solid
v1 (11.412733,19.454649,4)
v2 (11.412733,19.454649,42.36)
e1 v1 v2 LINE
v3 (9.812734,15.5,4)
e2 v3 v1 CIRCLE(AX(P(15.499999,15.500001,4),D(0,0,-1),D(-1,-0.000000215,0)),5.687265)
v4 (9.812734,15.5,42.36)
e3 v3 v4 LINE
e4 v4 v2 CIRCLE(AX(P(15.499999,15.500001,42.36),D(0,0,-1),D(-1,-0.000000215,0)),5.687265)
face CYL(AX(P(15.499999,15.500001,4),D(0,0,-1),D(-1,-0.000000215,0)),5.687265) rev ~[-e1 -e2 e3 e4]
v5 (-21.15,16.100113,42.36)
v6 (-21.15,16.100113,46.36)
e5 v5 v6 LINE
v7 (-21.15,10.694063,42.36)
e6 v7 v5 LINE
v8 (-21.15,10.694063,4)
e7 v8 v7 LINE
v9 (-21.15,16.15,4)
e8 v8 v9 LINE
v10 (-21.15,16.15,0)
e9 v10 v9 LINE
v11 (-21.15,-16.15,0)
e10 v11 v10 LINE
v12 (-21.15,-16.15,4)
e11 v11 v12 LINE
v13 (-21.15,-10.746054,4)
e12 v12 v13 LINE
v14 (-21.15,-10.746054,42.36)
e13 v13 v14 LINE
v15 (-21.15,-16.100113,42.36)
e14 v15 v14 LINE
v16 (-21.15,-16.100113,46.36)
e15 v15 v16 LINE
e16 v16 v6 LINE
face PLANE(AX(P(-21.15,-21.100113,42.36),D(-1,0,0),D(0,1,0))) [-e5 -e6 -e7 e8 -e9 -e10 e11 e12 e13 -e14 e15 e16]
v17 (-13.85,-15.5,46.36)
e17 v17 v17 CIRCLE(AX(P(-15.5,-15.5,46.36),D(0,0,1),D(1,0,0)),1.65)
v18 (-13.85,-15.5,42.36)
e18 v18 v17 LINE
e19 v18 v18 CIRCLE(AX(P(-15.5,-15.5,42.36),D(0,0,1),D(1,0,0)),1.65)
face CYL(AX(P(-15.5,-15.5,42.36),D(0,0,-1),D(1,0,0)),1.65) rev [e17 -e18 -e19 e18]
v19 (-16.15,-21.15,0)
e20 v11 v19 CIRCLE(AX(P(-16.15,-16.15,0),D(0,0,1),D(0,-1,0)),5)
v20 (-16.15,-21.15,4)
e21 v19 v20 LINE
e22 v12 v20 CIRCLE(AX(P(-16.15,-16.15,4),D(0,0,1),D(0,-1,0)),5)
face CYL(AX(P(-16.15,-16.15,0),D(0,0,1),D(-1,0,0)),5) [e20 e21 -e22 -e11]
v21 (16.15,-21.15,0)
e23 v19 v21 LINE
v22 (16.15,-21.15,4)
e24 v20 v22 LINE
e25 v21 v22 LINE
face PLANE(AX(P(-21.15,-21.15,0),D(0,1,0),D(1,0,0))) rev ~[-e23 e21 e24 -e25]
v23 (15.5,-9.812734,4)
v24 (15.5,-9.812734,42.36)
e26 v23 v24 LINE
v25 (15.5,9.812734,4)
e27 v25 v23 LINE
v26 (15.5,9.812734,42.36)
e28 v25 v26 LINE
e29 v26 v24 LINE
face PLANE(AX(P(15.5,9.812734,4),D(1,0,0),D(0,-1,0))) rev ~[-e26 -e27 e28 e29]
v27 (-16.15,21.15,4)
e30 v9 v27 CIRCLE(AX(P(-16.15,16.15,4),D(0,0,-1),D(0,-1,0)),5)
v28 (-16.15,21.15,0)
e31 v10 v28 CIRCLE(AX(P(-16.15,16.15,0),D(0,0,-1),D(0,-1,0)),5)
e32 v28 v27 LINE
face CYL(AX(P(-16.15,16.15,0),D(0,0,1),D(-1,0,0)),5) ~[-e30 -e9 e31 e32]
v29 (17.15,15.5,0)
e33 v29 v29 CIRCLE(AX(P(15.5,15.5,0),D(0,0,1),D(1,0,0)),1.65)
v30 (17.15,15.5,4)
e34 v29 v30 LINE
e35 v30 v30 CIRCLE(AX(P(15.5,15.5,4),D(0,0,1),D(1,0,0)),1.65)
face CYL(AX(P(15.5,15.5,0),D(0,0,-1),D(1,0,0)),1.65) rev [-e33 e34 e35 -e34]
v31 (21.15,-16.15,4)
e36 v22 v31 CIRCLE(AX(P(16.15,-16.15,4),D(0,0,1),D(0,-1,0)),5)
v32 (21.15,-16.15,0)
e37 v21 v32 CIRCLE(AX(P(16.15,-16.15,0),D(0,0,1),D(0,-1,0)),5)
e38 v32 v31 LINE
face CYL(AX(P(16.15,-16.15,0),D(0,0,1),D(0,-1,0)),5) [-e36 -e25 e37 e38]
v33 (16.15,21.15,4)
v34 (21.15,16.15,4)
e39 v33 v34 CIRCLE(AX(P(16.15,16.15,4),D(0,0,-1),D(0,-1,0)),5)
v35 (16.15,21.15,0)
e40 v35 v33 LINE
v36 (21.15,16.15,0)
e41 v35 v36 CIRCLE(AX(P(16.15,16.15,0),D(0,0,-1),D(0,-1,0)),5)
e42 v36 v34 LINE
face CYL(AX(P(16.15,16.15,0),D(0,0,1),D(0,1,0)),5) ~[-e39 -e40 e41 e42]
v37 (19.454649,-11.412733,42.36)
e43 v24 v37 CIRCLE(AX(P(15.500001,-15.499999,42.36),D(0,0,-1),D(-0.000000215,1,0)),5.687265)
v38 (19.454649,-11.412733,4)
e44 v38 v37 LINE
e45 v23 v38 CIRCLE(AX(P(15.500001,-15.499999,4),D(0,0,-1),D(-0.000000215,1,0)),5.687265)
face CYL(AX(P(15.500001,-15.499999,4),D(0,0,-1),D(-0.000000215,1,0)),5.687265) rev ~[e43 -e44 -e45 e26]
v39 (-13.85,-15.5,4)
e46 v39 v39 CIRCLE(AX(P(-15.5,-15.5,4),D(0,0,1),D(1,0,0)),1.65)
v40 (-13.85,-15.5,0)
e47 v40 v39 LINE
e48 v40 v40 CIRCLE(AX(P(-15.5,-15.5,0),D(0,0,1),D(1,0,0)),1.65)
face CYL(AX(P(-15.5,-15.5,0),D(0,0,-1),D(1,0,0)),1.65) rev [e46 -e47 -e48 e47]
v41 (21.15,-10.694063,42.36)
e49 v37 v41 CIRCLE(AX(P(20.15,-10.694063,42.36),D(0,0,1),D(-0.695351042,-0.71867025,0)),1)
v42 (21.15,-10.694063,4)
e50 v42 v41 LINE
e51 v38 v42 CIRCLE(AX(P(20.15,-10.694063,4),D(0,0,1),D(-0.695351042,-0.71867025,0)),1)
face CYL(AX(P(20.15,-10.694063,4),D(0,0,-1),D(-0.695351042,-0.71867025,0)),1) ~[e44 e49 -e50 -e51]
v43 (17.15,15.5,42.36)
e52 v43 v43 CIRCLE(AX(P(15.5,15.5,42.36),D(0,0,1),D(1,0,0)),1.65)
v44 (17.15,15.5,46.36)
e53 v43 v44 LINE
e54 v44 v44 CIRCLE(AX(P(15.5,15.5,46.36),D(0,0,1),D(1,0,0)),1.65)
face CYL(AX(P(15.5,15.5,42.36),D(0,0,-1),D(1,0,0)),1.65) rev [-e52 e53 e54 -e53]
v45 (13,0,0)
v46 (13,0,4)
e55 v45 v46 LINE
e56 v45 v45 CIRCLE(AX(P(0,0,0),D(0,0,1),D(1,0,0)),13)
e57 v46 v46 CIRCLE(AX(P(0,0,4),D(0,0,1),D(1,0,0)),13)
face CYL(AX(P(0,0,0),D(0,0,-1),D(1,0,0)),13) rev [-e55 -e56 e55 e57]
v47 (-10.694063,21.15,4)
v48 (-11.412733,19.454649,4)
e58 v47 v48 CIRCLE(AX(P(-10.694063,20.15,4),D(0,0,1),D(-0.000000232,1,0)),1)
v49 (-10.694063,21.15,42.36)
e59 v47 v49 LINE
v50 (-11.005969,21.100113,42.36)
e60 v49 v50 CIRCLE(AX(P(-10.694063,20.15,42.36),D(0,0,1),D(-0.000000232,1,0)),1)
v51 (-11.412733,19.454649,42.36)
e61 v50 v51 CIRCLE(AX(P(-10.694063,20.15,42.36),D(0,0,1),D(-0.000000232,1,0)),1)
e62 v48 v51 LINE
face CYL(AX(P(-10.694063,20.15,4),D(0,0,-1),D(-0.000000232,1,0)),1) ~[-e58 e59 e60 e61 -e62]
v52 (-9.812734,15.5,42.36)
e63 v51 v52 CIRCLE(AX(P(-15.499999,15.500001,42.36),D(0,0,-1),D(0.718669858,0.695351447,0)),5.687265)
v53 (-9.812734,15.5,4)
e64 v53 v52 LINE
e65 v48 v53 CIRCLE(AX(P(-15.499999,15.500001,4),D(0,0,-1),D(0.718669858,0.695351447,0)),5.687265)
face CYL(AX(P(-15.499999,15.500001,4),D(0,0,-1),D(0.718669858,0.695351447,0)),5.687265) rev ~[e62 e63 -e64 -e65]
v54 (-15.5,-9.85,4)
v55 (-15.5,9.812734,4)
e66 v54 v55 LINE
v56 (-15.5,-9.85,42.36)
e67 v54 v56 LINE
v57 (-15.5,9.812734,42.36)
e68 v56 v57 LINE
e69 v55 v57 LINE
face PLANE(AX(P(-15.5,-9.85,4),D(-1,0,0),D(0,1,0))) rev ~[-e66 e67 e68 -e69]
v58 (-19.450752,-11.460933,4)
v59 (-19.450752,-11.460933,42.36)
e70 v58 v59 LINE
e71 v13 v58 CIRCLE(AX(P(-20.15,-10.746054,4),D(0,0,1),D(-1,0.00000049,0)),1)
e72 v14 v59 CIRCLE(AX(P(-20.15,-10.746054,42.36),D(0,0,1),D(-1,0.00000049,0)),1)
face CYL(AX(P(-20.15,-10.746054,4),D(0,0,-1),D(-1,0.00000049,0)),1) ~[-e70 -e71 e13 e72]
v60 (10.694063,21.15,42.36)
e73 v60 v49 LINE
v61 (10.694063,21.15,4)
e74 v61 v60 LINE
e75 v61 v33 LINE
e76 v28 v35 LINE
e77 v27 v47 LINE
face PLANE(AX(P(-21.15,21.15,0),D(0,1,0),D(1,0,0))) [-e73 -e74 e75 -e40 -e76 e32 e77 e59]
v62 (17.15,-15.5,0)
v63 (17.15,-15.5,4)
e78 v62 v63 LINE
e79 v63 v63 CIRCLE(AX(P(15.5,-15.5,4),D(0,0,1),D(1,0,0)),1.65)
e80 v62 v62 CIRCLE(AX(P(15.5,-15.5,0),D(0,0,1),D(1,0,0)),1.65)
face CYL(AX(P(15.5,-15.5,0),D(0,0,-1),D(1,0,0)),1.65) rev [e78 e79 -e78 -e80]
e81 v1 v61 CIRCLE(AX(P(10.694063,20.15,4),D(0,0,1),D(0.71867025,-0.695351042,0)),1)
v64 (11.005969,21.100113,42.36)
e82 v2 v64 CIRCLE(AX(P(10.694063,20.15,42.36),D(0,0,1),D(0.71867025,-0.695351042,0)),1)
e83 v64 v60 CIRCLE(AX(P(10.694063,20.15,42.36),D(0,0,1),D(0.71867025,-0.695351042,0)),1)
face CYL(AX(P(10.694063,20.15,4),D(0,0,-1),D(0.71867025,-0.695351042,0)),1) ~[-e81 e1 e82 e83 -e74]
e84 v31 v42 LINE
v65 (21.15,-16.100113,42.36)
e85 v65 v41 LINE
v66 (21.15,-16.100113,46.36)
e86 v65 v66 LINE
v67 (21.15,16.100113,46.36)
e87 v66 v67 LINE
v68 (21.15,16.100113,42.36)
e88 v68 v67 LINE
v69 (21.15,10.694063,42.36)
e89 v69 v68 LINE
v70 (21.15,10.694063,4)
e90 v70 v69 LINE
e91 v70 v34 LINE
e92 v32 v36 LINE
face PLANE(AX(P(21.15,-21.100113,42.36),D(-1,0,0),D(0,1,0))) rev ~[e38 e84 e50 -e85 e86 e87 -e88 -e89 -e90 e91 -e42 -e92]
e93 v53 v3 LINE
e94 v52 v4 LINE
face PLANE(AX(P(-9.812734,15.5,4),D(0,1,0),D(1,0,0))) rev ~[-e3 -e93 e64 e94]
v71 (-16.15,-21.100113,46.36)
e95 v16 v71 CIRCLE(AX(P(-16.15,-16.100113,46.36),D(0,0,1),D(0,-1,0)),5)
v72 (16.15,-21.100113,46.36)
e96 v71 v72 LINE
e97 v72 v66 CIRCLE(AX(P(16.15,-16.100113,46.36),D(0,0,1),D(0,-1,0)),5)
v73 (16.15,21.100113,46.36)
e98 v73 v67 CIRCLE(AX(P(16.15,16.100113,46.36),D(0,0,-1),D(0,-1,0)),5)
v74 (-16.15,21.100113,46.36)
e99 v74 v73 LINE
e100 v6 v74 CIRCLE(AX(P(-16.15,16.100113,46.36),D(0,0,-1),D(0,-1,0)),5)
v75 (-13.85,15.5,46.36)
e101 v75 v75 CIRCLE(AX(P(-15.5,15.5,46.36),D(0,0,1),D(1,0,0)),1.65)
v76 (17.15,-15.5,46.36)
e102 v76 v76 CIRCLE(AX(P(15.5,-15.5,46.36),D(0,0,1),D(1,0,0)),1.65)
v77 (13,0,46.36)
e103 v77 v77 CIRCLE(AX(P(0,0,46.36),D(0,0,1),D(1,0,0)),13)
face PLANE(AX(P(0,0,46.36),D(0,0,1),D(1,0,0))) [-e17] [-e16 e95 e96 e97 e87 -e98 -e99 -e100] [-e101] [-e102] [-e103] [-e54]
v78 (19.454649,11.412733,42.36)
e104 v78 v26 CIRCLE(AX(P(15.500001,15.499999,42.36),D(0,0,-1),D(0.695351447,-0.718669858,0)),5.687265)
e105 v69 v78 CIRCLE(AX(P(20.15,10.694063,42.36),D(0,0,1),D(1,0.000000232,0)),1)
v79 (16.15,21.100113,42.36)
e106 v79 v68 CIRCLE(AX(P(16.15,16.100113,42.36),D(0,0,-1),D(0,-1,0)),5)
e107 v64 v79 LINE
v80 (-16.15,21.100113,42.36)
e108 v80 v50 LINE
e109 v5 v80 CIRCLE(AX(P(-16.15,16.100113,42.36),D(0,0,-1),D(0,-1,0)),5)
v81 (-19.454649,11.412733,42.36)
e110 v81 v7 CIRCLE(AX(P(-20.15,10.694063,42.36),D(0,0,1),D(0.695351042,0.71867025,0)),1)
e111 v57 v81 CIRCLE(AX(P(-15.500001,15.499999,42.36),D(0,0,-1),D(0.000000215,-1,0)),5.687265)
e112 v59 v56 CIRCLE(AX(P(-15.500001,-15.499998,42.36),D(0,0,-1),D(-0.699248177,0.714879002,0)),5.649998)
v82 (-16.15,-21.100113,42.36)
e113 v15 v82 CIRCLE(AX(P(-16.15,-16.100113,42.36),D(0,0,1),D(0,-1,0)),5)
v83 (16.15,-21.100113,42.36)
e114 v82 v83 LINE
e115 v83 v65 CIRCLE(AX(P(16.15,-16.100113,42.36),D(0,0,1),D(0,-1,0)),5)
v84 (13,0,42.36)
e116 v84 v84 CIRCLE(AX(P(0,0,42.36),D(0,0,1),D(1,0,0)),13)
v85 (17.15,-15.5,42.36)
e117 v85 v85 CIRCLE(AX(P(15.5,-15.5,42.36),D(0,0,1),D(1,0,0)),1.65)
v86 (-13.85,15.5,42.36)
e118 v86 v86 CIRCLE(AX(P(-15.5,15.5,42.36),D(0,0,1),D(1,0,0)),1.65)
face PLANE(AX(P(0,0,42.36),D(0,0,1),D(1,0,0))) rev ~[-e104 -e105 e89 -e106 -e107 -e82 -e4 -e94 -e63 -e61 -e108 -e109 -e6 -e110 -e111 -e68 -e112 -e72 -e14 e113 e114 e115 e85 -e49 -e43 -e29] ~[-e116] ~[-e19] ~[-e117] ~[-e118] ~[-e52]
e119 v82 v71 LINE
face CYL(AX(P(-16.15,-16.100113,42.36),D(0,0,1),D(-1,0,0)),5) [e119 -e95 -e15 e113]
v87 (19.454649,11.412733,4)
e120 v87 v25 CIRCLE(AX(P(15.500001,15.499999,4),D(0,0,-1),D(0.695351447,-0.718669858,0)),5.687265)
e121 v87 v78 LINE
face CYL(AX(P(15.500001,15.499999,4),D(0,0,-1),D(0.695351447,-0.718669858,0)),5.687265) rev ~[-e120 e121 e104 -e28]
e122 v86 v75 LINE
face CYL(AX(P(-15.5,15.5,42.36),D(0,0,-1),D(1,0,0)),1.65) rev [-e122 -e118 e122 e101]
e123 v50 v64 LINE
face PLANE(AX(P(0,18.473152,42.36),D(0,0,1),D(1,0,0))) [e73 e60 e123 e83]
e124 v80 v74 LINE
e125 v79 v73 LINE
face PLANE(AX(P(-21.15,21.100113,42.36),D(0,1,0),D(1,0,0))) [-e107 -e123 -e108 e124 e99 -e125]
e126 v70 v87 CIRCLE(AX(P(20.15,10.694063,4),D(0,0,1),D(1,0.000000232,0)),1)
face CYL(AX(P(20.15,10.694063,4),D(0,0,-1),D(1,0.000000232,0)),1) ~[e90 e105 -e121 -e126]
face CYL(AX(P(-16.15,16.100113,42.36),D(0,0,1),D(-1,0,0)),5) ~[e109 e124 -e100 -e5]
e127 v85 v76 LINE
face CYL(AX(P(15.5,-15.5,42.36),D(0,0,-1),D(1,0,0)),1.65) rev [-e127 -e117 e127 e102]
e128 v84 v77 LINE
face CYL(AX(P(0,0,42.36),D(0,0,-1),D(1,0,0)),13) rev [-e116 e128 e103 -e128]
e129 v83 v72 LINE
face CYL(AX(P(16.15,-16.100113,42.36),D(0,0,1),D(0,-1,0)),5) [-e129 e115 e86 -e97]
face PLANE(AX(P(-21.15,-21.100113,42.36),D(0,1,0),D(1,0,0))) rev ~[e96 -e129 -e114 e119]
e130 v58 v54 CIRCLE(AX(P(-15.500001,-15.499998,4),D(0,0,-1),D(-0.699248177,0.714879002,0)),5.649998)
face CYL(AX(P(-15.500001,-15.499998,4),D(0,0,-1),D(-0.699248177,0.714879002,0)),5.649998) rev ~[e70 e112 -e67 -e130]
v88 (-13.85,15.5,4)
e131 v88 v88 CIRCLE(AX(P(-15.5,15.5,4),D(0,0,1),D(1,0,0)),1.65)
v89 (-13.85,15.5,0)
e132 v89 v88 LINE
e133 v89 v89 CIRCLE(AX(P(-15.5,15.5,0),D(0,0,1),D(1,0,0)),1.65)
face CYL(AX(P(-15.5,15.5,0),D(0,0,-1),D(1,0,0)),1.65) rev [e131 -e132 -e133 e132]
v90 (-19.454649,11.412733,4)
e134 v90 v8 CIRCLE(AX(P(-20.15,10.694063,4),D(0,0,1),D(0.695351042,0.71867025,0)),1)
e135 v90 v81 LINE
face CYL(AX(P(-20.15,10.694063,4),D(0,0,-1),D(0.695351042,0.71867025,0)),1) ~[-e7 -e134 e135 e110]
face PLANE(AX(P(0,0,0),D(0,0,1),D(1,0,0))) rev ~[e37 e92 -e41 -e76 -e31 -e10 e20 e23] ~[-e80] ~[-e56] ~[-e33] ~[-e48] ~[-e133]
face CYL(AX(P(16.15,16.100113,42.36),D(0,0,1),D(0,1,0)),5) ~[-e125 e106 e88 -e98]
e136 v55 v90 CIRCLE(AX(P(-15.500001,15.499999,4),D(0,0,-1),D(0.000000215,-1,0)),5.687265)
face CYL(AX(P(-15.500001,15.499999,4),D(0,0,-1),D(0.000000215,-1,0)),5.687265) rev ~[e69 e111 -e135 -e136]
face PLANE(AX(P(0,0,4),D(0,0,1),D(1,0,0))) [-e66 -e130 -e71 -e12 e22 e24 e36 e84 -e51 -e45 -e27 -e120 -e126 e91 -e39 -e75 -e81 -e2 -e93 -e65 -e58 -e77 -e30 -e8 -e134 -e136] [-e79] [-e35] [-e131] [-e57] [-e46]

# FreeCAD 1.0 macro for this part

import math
import FreeCAD as App
import Part
import Sketcher


def edges_at(feature, points):
    """Names of the edges that pass closest to the given points."""
    edges = feature.Shape.Edges
    near = lambda p: min(range(len(edges)), key=lambda i: edges[i].distToShape(Part.Vertex(*p))[0])
    return sorted({f"Edge{near(p) + 1}" for p in points})


def add_polygon(sketch, points):
    """Adds a closed chain of lines whose ends are joined by coincident constraints."""
    first, n = sketch.GeometryCount, len(points)
    for a, b in zip(points, points[1:] + points[:1]):
        sketch.addGeometry(Part.LineSegment(App.Vector(*a, 0), App.Vector(*b, 0)), False)
    for i in range(n):
        sketch.addConstraint(Sketcher.Constraint("Coincident", first + i, 2, first + (i + 1) % n, 1))

doc = App.newDocument("Part")
body = doc.addObject("PartDesign::Body", "Body")

sketch1 = body.newObject("Sketcher::SketchObject", "Sketch")
sketch1.AttachmentSupport = (doc.getObject("XY_Plane"), [""])
sketch1.MapMode = "FlatFace"
add_polygon(sketch1, [(-21.15, 21.15), (-21.15, -21.15), (21.15, -21.15), (21.15, 21.15)])
sketch1.addGeometry(Part.Circle(App.Vector(-15.5, -15.5, 0), App.Vector(0, 0, 1), 1.65), False)
sketch1.addGeometry(Part.Circle(App.Vector(15.5, -15.5, 0), App.Vector(0, 0, 1), 1.65), False)
sketch1.addGeometry(Part.Circle(App.Vector(-15.5, 15.5, 0), App.Vector(0, 0, 1), 1.65), False)
sketch1.addGeometry(Part.Circle(App.Vector(0, 0, 0), App.Vector(0, 0, 1), 13), False)
sketch1.addGeometry(Part.Circle(App.Vector(15.5, 15.5, 0), App.Vector(0, 0, 1), 1.65), False)
sketch1.addConstraint([
    Sketcher.Constraint("Vertical", 0),
    Sketcher.Constraint("Horizontal", 1),
    Sketcher.Constraint("Vertical", 2),
    Sketcher.Constraint("Horizontal", 3),
    Sketcher.Constraint("Coincident", 7, 3, -1, 1),
    Sketcher.Constraint("Equal", 4, 5),
    Sketcher.Constraint("Equal", 5, 6),
    Sketcher.Constraint("Equal", 6, 8),
    Sketcher.Constraint("Symmetric", 5, 3, 6, 3, -1, 1),
    Sketcher.Constraint("Symmetric", 4, 3, 8, 3, -1, 1),
    Sketcher.Constraint("Symmetric", 0, 2, 2, 2, -1, 1),
    Sketcher.Constraint("Symmetric", 4, 3, 5, 3, -2),
    Sketcher.Constraint("Equal", 3, 0),
    Sketcher.Constraint("Diameter", 7, 26.0),
    Sketcher.Constraint("Diameter", 4, 3.3),
    Sketcher.Constraint("DistanceX", 1, 1, 1, 2, 42.3),
    Sketcher.Constraint("DistanceX", 4, 3, 5, 3, 31.0),
    Sketcher.Constraint("DistanceY", 4, 3, 6, 3, 31.0),
])
pad1 = body.newObject("PartDesign::Pad", "Pad")
pad1.Profile = sketch1
pad1.Length = 4
doc.recompute()

fillet = body.newObject("PartDesign::Fillet", "Fillet")
fillet.Base = (pad1, edges_at(pad1, [
    (-21.15, -21.15, 2),
    (21.15, -21.15, 2),
    (-21.15, 21.15, 2),
    (21.15, 21.15, 2),
]))
fillet.Radius = 5

sketch2 = body.newObject("Sketcher::SketchObject", "Sketch001")
sketch2.AttachmentSupport = (doc.getObject("XY_Plane"), [""])
sketch2.MapMode = "FlatFace"
sketch2.AttachmentOffset = App.Placement(App.Vector(0, 0, 4), App.Rotation())
sketch2.addGeometry([
    Part.ArcOfCircle(Part.Circle(App.Vector(-15.500001, 15.499999, 0), App.Vector(0, 0, 1), 5.687265), math.radians(-134.05523), math.radians(-89.999988)),
    Part.ArcOfCircle(Part.Circle(App.Vector(-20.15, 10.694063, 0), App.Vector(0, 0, 1), 1), math.radians(45.944803), math.radians(179.999987)),
    Part.LineSegment(App.Vector(-21.15, 10.694063, 0), App.Vector(-21.15, -10.746054, 0)),
    Part.ArcOfCircle(Part.Circle(App.Vector(-20.15, -10.746054, 0), App.Vector(0, 0, 1), 1), math.radians(179.999972), math.radians(314.36674)),
    Part.ArcOfCircle(Part.Circle(App.Vector(-15.500001, -15.499998, 0), App.Vector(0, 0, 1), 5.649998), math.radians(89.999986), math.radians(134.366716)),
    Part.LineSegment(App.Vector(-15.5, -9.85, 0), App.Vector(-15.5, 9.812734, 0)),
    Part.ArcOfCircle(Part.Circle(App.Vector(15.499999, 15.500001, 0), App.Vector(0, 0, 1), 5.687265), math.radians(135.94477), math.radians(180.000012)),
    Part.ArcOfCircle(Part.Circle(App.Vector(10.694063, 20.15, 0), App.Vector(0, 0, 1), 1), math.radians(-44.055197), math.radians(89.999987)),
    Part.LineSegment(App.Vector(10.694063, 21.15, 0), App.Vector(-10.694063, 21.15, 0)),
    Part.ArcOfCircle(Part.Circle(App.Vector(-10.694063, 20.15, 0), App.Vector(0, 0, 1), 1), math.radians(90.000013), math.radians(224.055197)),
    Part.ArcOfCircle(Part.Circle(App.Vector(-15.499999, 15.500001, 0), App.Vector(0, 0, 1), 5.687265), math.radians(-0.000012), math.radians(44.05523)),
    Part.LineSegment(App.Vector(-9.812734, 15.5, 0), App.Vector(9.812734, 15.5, 0)),
    Part.ArcOfCircle(Part.Circle(App.Vector(15.500001, -15.499999, 0), App.Vector(0, 0, 1), 5.687265), math.radians(45.94477), math.radians(90.000012)),
    Part.ArcOfCircle(Part.Circle(App.Vector(20.15, -10.694063, 0), App.Vector(0, 0, 1), 1), math.radians(-134.055197), math.radians(-0.000013)),
    Part.LineSegment(App.Vector(21.15, -10.694063, 0), App.Vector(21.15, 10.694063, 0)),
    Part.ArcOfCircle(Part.Circle(App.Vector(20.15, 10.694063, 0), App.Vector(0, 0, 1), 1), math.radians(0.000013), math.radians(134.055197)),
    Part.ArcOfCircle(Part.Circle(App.Vector(15.500001, 15.499999, 0), App.Vector(0, 0, 1), 5.687265), math.radians(-90.000012), math.radians(-45.94477)),
    Part.LineSegment(App.Vector(15.5, 9.812734, 0), App.Vector(15.5, -9.812734, 0)),
], False)
sketch2.addConstraint([
    Sketcher.Constraint("Tangent", 0, 1, 1, 1),
    Sketcher.Constraint("Tangent", 1, 2, 2, 1),
    Sketcher.Constraint("Tangent", 2, 2, 3, 1),
    Sketcher.Constraint("Tangent", 3, 2, 4, 2),
    Sketcher.Constraint("Coincident", 4, 1, 5, 1),
    Sketcher.Constraint("Coincident", 5, 2, 0, 2),
    Sketcher.Constraint("Tangent", 6, 1, 7, 1),
    Sketcher.Constraint("Tangent", 7, 2, 8, 1),
    Sketcher.Constraint("Tangent", 8, 2, 9, 1),
    Sketcher.Constraint("Tangent", 9, 2, 10, 2),
    Sketcher.Constraint("Coincident", 10, 1, 11, 1),
    Sketcher.Constraint("Coincident", 11, 2, 6, 2),
    Sketcher.Constraint("Tangent", 12, 1, 13, 1),
    Sketcher.Constraint("Tangent", 13, 2, 14, 1),
    Sketcher.Constraint("Tangent", 14, 2, 15, 1),
    Sketcher.Constraint("Tangent", 15, 2, 16, 2),
    Sketcher.Constraint("Coincident", 16, 1, 17, 1),
    Sketcher.Constraint("Coincident", 17, 2, 12, 2),
    Sketcher.Constraint("Vertical", 2),
    Sketcher.Constraint("Vertical", 5),
    Sketcher.Constraint("Horizontal", 8),
    Sketcher.Constraint("Horizontal", 11),
    Sketcher.Constraint("Vertical", 14),
    Sketcher.Constraint("Vertical", 17),
    Sketcher.Constraint("Coincident", 10, 3, 0, 3),
    Sketcher.Constraint("Coincident", 16, 3, 6, 3),
    Sketcher.Constraint("Equal", 1, 3),
    Sketcher.Constraint("Equal", 0, 6),
    Sketcher.Constraint("Equal", 3, 7),
    Sketcher.Constraint("Equal", 7, 9),
    Sketcher.Constraint("Equal", 6, 10),
    Sketcher.Constraint("Equal", 10, 12),
    Sketcher.Constraint("Equal", 9, 13),
    Sketcher.Constraint("Equal", 13, 15),
    Sketcher.Constraint("Equal", 12, 16),
    Sketcher.Constraint("Symmetric", 4, 3, 6, 3, -1, 1),
    Sketcher.Constraint("Symmetric", 0, 3, 12, 3, -1, 1),
    Sketcher.Constraint("Symmetric", 0, 3, 6, 3, -2),
    Sketcher.Constraint("Horizontal", 1, 3, 15, 3),
    Sketcher.Constraint("Horizontal", 16, 3, 10, 1),
    Sketcher.Constraint("Vertical", 10, 3, 4, 1),
    Sketcher.Constraint("Vertical", 12, 3, 16, 1),
    Sketcher.Constraint("Equal", 8, 14),
    Sketcher.Constraint("Equal", 11, 17),
    Sketcher.Constraint("Radius", 1, 1.0),
    Sketcher.Constraint("DistanceX", 0, 3, 6, 3, 31.0),
    Sketcher.Constraint("DistanceX", 3, 3, 13, 3, 40.3),
    Sketcher.Constraint("DistanceY", 5, 2, 0, 1, 1.599999),
    Sketcher.Constraint("DistanceY", 4, 1, -1, 1, 9.85),
])
pad2 = body.newObject("PartDesign::Pad", "Pad001")
pad2.Profile = sketch2
pad2.Length = 38.36

sketch3 = body.newObject("Sketcher::SketchObject", "Sketch002")
sketch3.AttachmentSupport = (doc.getObject("XY_Plane"), [""])
sketch3.MapMode = "FlatFace"
sketch3.AttachmentOffset = App.Placement(App.Vector(0, 0, 42.36), App.Rotation())
add_polygon(sketch3, [(-21.15, 21.100113), (-21.15, -21.100113), (21.15, -21.100113), (21.15, 21.100113)])
sketch3.addGeometry(Part.Circle(App.Vector(-15.5, -15.5, 0), App.Vector(0, 0, 1), 1.65), False)
sketch3.addGeometry(Part.Circle(App.Vector(15.5, -15.5, 0), App.Vector(0, 0, 1), 1.65), False)
sketch3.addGeometry(Part.Circle(App.Vector(-15.5, 15.5, 0), App.Vector(0, 0, 1), 1.65), False)
sketch3.addGeometry(Part.Circle(App.Vector(0, 0, 0), App.Vector(0, 0, 1), 13), False)
sketch3.addGeometry(Part.Circle(App.Vector(15.5, 15.5, 0), App.Vector(0, 0, 1), 1.65), False)
sketch3.addConstraint([
    Sketcher.Constraint("Vertical", 0),
    Sketcher.Constraint("Horizontal", 1),
    Sketcher.Constraint("Vertical", 2),
    Sketcher.Constraint("Horizontal", 3),
    Sketcher.Constraint("Coincident", 7, 3, -1, 1),
    Sketcher.Constraint("Equal", 4, 5),
    Sketcher.Constraint("Equal", 5, 6),
    Sketcher.Constraint("Equal", 6, 8),
    Sketcher.Constraint("Symmetric", 5, 3, 6, 3, -1, 1),
    Sketcher.Constraint("Symmetric", 4, 3, 8, 3, -1, 1),
    Sketcher.Constraint("Symmetric", 0, 2, 2, 2, -1, 1),
    Sketcher.Constraint("Symmetric", 4, 3, 5, 3, -2),
    Sketcher.Constraint("Diameter", 7, 26.0),
    Sketcher.Constraint("Diameter", 4, 3.3),
    Sketcher.Constraint("DistanceX", 1, 1, 1, 2, 42.3),
    Sketcher.Constraint("DistanceX", 4, 3, 5, 3, 31.0),
    Sketcher.Constraint("DistanceY", 4, 3, 6, 3, 31.0),
    Sketcher.Constraint("DistanceY", 0, 2, 0, 1, 42.200226),
])
pad3 = body.newObject("PartDesign::Pad", "Pad002")
pad3.Profile = sketch3
pad3.Length = 4
doc.recompute()

fillet2 = body.newObject("PartDesign::Fillet", "Fillet001")
fillet2.Base = (pad3, edges_at(pad3, [
    (-21.15, -21.1, 44.36),
    (21.15, -21.1, 44.36),
    (-21.15, 21.1, 44.36),
    (21.15, 21.1, 44.36),
]))
fillet2.Radius = 5

doc.recompute()
